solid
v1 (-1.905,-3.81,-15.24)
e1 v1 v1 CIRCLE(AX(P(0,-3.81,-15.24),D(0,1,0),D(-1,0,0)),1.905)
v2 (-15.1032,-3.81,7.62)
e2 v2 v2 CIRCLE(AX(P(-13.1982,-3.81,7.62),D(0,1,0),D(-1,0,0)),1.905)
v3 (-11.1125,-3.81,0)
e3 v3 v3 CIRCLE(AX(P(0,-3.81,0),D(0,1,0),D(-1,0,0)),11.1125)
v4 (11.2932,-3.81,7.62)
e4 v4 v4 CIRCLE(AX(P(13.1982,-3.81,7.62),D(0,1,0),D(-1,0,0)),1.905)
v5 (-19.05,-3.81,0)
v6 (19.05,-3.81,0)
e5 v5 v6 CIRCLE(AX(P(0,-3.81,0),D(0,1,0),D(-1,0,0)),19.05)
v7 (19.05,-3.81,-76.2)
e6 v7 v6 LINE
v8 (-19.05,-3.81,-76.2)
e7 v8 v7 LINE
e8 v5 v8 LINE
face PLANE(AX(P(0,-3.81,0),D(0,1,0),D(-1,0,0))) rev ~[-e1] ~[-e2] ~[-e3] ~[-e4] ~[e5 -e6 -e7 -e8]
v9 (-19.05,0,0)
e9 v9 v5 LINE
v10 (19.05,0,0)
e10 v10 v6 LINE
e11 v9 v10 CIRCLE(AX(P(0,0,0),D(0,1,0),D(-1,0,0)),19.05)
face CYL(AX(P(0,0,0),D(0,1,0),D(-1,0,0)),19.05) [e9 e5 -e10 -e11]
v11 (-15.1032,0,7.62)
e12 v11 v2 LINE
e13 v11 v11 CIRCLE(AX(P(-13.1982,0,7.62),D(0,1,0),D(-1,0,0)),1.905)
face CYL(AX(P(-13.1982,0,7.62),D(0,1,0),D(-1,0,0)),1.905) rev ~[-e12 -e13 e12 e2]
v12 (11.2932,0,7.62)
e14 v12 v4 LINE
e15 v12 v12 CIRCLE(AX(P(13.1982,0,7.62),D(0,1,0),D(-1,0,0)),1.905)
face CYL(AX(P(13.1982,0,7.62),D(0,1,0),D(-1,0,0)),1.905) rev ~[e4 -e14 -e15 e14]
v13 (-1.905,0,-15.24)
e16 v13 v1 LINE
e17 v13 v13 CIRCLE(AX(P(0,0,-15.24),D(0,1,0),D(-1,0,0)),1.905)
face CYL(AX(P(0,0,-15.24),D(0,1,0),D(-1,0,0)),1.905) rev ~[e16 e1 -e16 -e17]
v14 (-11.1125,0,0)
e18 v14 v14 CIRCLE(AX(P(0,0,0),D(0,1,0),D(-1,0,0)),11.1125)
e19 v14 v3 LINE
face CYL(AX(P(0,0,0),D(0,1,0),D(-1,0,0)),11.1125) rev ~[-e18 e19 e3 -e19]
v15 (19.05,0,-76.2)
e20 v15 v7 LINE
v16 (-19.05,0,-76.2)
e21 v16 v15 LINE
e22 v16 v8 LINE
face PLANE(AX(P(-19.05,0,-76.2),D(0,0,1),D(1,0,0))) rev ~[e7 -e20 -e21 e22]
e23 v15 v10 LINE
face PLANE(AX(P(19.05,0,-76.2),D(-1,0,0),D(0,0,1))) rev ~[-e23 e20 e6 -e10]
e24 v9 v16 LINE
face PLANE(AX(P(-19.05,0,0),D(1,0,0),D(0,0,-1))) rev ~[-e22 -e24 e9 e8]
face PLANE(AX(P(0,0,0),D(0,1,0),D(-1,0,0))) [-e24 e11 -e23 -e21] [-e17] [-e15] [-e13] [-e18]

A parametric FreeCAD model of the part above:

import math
import FreeCAD as App
import Part
import Sketcher

V = App.Vector
Q = App.Units.Quantity

doc = App.newDocument("Part")
body = doc.addObject("PartDesign::Body", "Body")

# Sketch on XZ plane
sketch1 = body.newObject("Sketcher::SketchObject", "Sketch")
sketch1.AttachmentSupport = (doc.getObject("XZ_Plane"), [""])
sketch1.MapMode = "FlatFace"
sketch1.addGeometry(Part.LineSegment(V(-19.05, -76.2, 0), V(-19.05, 0, 0)), False)
sketch1.addGeometry(Part.ArcOfCircle(Part.Circle(V(0, 0, 0), V(0, 0, 1), 19.05), math.radians(0), math.radians(180)), False)
sketch1.addGeometry(Part.LineSegment(V(19.05, 0, 0), V(19.05, -76.2, 0)), False)
sketch1.addGeometry(Part.LineSegment(V(19.05, -76.2, 0), V(-19.05, -76.2, 0)), False)
sketch1.addGeometry(Part.Circle(V(13.1982, 7.62, 0), V(0, 0, 1), 1.905), False)
sketch1.addGeometry(Part.Circle(V(0, -15.24, 0), V(0, 0, 1), 1.905), False)
sketch1.addGeometry(Part.Circle(V(0, 0, 0), V(0, 0, 1), 11.1125), False)
sketch1.addGeometry(Part.Circle(V(-13.1982, 7.62, 0), V(0, 0, 1), 1.905), False)
sketch1.addConstraint(Sketcher.Constraint("Tangent", 0, 2, 1, 2))
sketch1.addConstraint(Sketcher.Constraint("Tangent", 1, 1, 2, 1))
sketch1.addConstraint(Sketcher.Constraint("Coincident", 2, 2, 3, 1))
sketch1.addConstraint(Sketcher.Constraint("Coincident", 3, 2, 0, 1))
sketch1.addConstraint(Sketcher.Constraint("Vertical", 0))
sketch1.addConstraint(Sketcher.Constraint("Vertical", 2))
sketch1.addConstraint(Sketcher.Constraint("Horizontal", 3))
sketch1.addConstraint(Sketcher.Constraint("Coincident", 1, 3, -1, 1))
sketch1.addConstraint(Sketcher.Constraint("Coincident", 6, 3, -1, 1))
sketch1.addConstraint(Sketcher.Constraint("Equal", 4, 5))
sketch1.addConstraint(Sketcher.Constraint("Equal", 5, 7))
sketch1.addConstraint(Sketcher.Constraint("Symmetric", 4, 3, 7, 3, -2))
sketch1.addConstraint(Sketcher.Constraint("PointOnObject", 5, 3, -2))
sketch1.addConstraint(Sketcher.Constraint("Diameter", 4, Q("0.15 in")))
sketch1.addConstraint(Sketcher.Constraint("DistanceY", 0, 1, 0, 2, Q("3 in")))
sketch1.addConstraint(Sketcher.Constraint("Radius", 1, Q("0.75 in")))
sketch1.addConstraint(Sketcher.Constraint("Diameter", 6, Q("0.875 in")))
sketch1.addConstraint(Sketcher.Constraint("DistanceY", -1, 1, 4, 3, Q("0.3 in")))
sketch1.addConstraint(Sketcher.Constraint("DistanceY", 5, 3, -1, 1, Q("0.6 in")))
sketch1.addConstraint(Sketcher.Constraint("DistanceX", -1, 1, 4, 3, Q("13.1982 mm")))
pad1 = body.newObject("PartDesign::Pad", "Pad")
pad1.Profile = sketch1
pad1.Length = Q("0.15 in")

doc.recompute()
